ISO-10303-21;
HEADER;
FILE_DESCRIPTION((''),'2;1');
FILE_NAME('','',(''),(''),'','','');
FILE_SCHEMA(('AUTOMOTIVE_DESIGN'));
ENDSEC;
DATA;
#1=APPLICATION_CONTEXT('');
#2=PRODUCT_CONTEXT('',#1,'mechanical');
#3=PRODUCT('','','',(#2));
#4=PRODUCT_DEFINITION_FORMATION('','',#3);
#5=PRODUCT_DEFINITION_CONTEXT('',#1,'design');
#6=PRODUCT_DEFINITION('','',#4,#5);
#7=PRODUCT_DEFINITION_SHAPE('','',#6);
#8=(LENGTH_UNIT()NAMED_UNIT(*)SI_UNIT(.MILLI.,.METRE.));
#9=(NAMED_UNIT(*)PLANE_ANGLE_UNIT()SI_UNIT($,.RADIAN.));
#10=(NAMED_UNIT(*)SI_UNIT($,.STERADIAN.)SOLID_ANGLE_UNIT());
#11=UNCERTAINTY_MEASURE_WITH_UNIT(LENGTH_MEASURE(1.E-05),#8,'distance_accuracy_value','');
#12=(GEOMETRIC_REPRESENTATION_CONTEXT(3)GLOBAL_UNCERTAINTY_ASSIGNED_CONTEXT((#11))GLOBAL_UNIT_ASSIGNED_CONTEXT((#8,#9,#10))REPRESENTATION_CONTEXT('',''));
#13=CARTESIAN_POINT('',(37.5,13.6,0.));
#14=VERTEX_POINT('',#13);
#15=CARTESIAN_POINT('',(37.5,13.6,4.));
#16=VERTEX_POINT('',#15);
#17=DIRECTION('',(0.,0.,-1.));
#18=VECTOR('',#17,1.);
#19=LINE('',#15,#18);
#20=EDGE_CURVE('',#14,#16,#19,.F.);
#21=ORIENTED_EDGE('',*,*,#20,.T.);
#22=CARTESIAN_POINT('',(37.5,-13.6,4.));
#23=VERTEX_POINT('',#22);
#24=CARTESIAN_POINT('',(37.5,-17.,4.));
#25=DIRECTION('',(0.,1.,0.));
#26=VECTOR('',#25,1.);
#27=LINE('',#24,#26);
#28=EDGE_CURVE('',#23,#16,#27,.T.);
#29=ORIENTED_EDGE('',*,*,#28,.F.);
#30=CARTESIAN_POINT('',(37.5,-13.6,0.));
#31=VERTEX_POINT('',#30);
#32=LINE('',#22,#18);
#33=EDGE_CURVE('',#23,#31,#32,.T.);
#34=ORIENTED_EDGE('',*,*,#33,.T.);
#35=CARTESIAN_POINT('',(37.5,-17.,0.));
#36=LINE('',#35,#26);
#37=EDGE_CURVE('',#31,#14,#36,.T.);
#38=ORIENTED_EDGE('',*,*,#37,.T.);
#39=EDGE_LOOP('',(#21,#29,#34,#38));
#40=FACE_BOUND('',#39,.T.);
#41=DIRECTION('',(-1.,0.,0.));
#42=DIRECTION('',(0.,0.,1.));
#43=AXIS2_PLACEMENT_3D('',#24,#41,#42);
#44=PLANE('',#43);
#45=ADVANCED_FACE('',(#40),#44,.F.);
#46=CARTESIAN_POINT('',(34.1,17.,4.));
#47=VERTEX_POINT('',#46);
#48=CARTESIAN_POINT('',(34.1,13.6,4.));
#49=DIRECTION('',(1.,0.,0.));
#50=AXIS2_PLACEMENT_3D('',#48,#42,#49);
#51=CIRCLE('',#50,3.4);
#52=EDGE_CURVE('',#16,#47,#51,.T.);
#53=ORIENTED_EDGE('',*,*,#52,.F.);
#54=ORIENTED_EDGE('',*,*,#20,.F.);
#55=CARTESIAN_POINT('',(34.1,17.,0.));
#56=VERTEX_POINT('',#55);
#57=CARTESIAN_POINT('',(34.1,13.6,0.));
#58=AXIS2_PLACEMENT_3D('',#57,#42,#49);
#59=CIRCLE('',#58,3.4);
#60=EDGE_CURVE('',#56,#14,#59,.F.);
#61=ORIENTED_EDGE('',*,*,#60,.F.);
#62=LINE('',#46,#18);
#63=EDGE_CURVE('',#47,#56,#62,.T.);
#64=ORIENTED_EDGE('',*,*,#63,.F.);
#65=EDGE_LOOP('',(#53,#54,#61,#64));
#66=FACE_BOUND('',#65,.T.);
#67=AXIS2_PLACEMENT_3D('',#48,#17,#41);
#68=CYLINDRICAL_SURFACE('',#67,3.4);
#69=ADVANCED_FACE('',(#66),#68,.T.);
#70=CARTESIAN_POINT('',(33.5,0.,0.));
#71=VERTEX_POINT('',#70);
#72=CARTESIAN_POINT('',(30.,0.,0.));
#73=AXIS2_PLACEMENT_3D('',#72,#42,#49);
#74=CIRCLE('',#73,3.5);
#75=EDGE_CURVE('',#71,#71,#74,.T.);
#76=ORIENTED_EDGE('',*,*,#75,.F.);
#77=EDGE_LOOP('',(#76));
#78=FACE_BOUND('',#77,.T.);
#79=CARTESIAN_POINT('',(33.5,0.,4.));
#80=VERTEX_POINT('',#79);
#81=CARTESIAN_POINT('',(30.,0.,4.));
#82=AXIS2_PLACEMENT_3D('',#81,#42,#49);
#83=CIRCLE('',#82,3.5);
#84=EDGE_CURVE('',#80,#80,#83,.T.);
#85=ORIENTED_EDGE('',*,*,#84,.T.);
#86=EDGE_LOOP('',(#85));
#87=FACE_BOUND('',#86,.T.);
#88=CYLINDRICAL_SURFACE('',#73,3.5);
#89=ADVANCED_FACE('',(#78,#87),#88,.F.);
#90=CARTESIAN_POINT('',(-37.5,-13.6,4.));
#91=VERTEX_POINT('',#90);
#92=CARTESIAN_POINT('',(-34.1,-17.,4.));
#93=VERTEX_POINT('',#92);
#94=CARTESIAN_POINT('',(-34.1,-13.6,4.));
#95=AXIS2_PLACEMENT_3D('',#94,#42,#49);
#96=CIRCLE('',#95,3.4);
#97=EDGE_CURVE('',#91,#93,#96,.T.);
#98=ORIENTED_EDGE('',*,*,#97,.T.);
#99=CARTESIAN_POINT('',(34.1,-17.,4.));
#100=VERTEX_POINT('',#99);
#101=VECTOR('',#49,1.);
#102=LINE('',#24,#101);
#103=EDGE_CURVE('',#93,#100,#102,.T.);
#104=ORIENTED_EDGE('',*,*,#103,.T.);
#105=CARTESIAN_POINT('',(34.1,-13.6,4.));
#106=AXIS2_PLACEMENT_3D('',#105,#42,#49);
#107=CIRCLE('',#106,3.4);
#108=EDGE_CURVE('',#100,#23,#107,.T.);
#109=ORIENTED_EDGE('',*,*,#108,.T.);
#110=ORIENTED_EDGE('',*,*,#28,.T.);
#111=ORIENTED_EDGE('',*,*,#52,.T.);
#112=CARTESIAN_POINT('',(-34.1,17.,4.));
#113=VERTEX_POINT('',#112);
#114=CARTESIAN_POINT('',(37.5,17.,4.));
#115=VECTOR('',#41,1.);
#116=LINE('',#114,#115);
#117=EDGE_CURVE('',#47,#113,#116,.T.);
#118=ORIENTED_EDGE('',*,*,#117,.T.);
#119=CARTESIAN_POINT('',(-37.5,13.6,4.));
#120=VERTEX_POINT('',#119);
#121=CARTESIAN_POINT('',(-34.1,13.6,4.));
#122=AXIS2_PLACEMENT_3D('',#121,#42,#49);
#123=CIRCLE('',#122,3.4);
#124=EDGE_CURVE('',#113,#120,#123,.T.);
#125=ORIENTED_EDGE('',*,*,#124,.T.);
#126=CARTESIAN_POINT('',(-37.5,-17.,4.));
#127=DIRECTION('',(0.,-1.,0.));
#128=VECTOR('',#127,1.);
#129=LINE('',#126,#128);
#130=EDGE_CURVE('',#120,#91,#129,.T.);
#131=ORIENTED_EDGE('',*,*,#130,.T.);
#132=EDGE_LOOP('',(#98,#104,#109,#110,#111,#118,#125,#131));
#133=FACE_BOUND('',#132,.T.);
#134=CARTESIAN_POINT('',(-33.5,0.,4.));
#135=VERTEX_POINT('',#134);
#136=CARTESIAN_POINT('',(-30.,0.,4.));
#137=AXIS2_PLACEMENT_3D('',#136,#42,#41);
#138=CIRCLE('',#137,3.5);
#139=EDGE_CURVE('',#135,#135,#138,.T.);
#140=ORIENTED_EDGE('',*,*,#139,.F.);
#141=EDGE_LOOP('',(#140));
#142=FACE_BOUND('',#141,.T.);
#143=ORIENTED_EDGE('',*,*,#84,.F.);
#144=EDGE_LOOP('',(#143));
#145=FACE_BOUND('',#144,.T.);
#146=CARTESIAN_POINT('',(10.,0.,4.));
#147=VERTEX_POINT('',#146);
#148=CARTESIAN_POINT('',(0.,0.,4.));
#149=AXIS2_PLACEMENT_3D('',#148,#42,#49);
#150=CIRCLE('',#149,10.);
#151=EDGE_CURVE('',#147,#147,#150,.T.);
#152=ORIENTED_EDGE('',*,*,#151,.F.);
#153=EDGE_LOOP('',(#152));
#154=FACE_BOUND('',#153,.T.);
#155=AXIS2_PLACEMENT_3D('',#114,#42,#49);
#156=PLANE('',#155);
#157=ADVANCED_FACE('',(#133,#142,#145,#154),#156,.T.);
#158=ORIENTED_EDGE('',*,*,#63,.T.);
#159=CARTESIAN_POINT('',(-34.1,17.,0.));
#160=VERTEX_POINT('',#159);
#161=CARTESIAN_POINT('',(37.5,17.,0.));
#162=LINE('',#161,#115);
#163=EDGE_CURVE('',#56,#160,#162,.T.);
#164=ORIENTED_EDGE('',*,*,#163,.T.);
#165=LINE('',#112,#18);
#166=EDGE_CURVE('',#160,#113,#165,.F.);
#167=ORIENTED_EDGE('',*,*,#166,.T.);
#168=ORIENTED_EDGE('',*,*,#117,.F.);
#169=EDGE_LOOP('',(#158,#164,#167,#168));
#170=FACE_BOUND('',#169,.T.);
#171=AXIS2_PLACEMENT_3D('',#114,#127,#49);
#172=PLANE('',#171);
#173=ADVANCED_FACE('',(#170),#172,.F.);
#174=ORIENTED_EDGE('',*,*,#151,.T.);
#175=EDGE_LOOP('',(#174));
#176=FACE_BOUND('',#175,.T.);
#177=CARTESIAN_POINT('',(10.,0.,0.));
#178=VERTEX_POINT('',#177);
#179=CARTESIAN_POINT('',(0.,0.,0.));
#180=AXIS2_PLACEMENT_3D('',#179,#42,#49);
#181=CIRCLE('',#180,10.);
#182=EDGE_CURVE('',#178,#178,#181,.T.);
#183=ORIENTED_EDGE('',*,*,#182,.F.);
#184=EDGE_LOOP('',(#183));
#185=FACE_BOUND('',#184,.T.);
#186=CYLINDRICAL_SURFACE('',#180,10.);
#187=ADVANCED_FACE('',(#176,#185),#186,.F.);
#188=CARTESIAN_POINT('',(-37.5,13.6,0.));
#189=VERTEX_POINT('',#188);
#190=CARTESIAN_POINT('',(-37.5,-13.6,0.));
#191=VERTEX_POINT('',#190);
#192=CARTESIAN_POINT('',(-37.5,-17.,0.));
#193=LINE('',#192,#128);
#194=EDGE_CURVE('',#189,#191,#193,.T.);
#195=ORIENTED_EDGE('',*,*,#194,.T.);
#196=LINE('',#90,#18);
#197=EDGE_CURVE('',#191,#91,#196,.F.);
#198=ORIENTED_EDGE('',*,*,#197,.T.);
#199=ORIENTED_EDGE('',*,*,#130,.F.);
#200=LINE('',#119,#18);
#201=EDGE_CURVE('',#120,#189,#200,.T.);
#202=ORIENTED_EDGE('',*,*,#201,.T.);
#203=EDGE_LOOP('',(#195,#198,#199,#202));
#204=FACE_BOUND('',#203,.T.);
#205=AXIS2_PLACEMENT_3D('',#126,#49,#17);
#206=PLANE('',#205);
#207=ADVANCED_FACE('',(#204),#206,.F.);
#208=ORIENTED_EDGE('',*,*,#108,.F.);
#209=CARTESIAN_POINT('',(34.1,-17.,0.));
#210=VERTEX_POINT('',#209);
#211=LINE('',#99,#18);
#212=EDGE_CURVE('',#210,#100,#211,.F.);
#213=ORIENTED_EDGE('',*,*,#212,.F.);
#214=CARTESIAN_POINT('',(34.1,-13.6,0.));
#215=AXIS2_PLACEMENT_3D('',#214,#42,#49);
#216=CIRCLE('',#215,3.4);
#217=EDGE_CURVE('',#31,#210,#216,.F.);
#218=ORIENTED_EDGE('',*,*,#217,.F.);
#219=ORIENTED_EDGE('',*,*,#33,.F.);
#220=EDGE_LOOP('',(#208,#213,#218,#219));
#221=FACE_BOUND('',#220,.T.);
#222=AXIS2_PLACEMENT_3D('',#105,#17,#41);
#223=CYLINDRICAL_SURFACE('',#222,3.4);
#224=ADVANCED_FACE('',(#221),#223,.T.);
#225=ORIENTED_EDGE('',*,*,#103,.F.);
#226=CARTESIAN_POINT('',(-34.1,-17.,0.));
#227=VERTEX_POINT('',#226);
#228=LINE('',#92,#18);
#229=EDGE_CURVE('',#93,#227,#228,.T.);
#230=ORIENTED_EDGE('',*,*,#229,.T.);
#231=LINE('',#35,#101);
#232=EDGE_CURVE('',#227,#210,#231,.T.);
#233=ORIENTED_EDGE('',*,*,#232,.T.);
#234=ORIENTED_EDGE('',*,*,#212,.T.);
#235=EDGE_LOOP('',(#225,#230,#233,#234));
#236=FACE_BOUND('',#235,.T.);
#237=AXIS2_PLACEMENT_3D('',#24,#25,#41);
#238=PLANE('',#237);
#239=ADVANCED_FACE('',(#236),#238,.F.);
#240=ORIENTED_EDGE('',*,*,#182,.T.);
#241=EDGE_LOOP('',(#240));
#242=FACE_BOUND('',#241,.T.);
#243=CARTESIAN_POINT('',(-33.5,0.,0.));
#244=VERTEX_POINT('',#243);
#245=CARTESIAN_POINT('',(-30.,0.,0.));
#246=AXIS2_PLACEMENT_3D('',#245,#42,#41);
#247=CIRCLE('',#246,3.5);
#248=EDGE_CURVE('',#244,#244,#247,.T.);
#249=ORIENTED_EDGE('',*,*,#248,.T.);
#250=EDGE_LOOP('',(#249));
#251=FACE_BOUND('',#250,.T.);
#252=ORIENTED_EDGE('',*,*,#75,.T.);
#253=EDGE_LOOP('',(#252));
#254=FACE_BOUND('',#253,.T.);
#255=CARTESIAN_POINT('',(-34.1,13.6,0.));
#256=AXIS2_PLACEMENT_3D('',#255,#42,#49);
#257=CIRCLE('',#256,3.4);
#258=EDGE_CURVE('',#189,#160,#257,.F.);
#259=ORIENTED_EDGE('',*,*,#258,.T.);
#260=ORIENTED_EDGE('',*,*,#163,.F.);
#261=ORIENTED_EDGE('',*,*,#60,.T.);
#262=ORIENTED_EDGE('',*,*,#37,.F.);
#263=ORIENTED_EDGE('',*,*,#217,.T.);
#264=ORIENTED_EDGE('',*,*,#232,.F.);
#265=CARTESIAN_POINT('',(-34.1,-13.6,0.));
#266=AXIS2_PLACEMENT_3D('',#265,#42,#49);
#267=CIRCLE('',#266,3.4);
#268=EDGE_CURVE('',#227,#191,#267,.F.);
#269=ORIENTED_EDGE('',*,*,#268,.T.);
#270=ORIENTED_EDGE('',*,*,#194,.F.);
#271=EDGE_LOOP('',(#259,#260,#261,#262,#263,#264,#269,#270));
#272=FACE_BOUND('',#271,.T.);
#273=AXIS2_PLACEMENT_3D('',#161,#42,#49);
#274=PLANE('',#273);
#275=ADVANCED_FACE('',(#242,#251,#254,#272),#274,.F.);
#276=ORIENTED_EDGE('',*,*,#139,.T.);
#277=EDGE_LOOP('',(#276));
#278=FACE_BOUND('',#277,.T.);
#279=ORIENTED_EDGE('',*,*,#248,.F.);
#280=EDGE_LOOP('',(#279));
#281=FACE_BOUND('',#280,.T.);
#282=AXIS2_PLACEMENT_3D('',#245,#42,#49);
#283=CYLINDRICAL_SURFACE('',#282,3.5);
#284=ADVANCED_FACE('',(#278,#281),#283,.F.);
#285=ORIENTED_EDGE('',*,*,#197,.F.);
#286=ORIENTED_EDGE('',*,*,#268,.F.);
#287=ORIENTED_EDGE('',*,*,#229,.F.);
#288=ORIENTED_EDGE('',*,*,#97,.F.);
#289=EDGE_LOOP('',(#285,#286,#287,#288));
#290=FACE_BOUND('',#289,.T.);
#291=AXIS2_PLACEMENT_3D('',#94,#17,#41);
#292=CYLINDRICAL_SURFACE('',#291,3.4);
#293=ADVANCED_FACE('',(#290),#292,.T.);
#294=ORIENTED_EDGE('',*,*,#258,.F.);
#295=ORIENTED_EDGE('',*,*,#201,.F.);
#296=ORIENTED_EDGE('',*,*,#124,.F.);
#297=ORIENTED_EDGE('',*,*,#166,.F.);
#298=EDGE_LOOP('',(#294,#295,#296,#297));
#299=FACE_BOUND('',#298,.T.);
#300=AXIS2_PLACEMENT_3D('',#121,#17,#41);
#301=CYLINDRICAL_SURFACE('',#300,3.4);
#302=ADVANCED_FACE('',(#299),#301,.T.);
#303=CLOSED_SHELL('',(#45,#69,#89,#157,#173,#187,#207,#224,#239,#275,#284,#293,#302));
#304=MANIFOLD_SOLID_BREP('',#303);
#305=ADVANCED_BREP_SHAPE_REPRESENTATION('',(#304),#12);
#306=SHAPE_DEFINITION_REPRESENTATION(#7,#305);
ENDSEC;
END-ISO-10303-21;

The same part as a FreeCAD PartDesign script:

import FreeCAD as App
import Part
import Sketcher
Q = App.Units.Quantity


def edges_at(feature, points):
    """Names of the edges that pass closest to the given points."""
    edges = feature.Shape.Edges
    near = lambda p: min(range(len(edges)), key=lambda i: edges[i].distToShape(Part.Vertex(*p))[0])
    return sorted({f"Edge{near(p) + 1}" for p in points})

doc = App.newDocument("Part")
body = doc.addObject("PartDesign::Body", "Body")

# Sketch on XY plane
sketch1 = body.newObject("Sketcher::SketchObject", "Sketch")
sketch1.AttachmentSupport = (doc.getObject("XY_Plane"), [""])
sketch1.MapMode = "FlatFace"
sketch1.addGeometry([
    Part.LineSegment(App.Vector(-37.5, 17, 0), App.Vector(-37.5, -17, 0)),
    Part.LineSegment(App.Vector(-37.5, -17, 0), App.Vector(37.5, -17, 0)),
    Part.LineSegment(App.Vector(37.5, -17, 0), App.Vector(37.5, 17, 0)),
    Part.LineSegment(App.Vector(37.5, 17, 0), App.Vector(-37.5, 17, 0)),
], False)
sketch1.addConstraint([
    Sketcher.Constraint("Coincident", 0, 2, 1, 1),
    Sketcher.Constraint("Coincident", 1, 2, 2, 1),
    Sketcher.Constraint("Coincident", 2, 2, 3, 1),
    Sketcher.Constraint("Coincident", 3, 2, 0, 1),
    Sketcher.Constraint("Vertical", 0),
    Sketcher.Constraint("Horizontal", 1),
    Sketcher.Constraint("Vertical", 2),
    Sketcher.Constraint("Horizontal", 3),
    Sketcher.Constraint("Symmetric", 0, 2, 2, 2, -1, 1),
    Sketcher.Constraint("DistanceX", 1, 1, 1, 2, Q("75 mm")),
    Sketcher.Constraint("DistanceY", 0, 2, 0, 1, Q("34 mm")),
])
pad1 = body.newObject("PartDesign::Pad", "Pad")
pad1.Profile = sketch1
pad1.Length = 4

# Sketch on XY plane
sketch2 = body.newObject("Sketcher::SketchObject", "Sketch001")
sketch2.AttachmentSupport = (doc.getObject("XY_Plane"), [""])
sketch2.MapMode = "FlatFace"
sketch2.AttachmentOffset = App.Placement(App.Vector(0, 0, 4), App.Rotation())
sketch2.addGeometry(Part.Circle(App.Vector(0, 0, 0), App.Vector(0, 0, 1), 10), False)
sketch2.addConstraint([
    Sketcher.Constraint("Coincident", 0, 3, -1, 1),
    Sketcher.Constraint("Diameter", 0, Q("20 mm")),
])
pocket1 = body.newObject("PartDesign::Pocket", "Pocket")
pocket1.Profile = sketch2
pocket1.Type = "ThroughAll"
doc.recompute()

fillet = body.newObject("PartDesign::Fillet", "Fillet")
fillet.Base = (pocket1, edges_at(pocket1, [
    (37.5, -17, 2),
    (-37.5, -17, 2),
    (-37.5, 17, 2),
    (37.5, 17, 2),
]))
fillet.Radius = 3.4

# Sketch on XY plane
sketch3 = body.newObject("Sketcher::SketchObject", "Sketch002")
sketch3.AttachmentSupport = (doc.getObject("XY_Plane"), [""])
sketch3.MapMode = "FlatFace"
sketch3.AttachmentOffset = App.Placement(App.Vector(0, 0, 4), App.Rotation())
sketch3.addGeometry([
    Part.Circle(App.Vector(30, 0, 0), App.Vector(0, 0, 1), 3.5),
    Part.Circle(App.Vector(-30, 0, 0), App.Vector(0, 0, 1), 3.5),
], False)
sketch3.addConstraint([
    Sketcher.Constraint("Equal", 0, 1),
    Sketcher.Constraint("Symmetric", 0, 3, 1, 3, -1, 1),
    Sketcher.Constraint("PointOnObject", 0, 3, -1),
    Sketcher.Constraint("Diameter", 0, Q("7 mm")),
    Sketcher.Constraint("DistanceX", -1, 1, 0, 3, Q("30 mm")),
])
pocket2 = body.newObject("PartDesign::Pocket", "Pocket001")
pocket2.Profile = sketch3
pocket2.Type = "ThroughAll"

doc.recompute()
